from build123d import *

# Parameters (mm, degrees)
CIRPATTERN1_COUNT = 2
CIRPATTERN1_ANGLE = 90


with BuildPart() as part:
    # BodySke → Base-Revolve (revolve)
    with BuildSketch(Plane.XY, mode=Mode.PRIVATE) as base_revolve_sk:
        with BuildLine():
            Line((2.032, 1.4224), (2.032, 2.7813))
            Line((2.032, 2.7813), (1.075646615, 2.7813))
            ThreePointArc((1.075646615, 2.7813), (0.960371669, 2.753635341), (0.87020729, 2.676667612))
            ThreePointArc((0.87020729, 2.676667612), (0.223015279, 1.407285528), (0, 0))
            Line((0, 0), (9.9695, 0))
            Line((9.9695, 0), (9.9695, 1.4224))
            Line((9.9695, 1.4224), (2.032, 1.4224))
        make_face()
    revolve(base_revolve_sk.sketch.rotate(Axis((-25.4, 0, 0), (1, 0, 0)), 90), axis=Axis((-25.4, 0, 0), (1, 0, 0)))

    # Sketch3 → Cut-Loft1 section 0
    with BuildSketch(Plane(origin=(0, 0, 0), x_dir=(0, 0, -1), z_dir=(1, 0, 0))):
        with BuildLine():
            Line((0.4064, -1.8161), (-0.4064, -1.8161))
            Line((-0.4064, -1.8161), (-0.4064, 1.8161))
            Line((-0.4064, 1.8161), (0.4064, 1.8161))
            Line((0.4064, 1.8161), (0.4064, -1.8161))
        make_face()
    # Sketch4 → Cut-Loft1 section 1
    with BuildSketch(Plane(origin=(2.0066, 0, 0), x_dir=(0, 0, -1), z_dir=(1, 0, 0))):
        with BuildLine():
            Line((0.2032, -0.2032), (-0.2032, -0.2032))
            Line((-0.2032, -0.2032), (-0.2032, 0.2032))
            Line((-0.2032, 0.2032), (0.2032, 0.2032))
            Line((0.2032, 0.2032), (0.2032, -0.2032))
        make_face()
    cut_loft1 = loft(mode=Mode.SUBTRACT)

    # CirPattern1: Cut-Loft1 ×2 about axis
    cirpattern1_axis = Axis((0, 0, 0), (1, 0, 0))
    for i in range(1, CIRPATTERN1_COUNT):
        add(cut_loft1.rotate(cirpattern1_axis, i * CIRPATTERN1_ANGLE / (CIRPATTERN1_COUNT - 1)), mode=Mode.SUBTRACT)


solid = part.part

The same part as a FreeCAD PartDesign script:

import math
import FreeCAD as App
import Part
import Sketcher
from FreeCAD import Vector
Q = App.Units.Quantity

doc = App.newDocument("Part")
body = doc.addObject("PartDesign::Body", "Body")

sketch1 = body.newObject("Sketcher::SketchObject", "Sketch")
sketch1.AttachmentSupport = (doc.getObject("XY_Plane"), [""])
sketch1.MapMode = "FlatFace"
sketch1.addGeometry([
    Part.LineSegment(Vector(2.032, 1.4224, 0), Vector(2.032, 2.7813, 0)),
    Part.LineSegment(Vector(2.032, 2.7813, 0), Vector(1.075647, 2.7813, 0)),
    Part.ArcOfCircle(Part.Circle(Vector(1.075647, 2.5273, 0), Vector(0, 0, 1), 0.254), math.radians(90), math.radians(143.980436)),
    Part.ArcOfCircle(Part.Circle(Vector(4.55168, 0, 0), Vector(0, 0, 1), 4.55168), math.radians(143.980436), math.radians(180)),
    Part.LineSegment(Vector(0, 0, 0), Vector(9.9695, 0, 0)),
    Part.LineSegment(Vector(9.9695, 0, 0), Vector(9.9695, 1.4224, 0)),
    Part.LineSegment(Vector(9.9695, 1.4224, 0), Vector(2.032, 1.4224, 0)),
], False)
sketch1.addConstraint([
    Sketcher.Constraint("Coincident", 0, 2, 1, 1),
    Sketcher.Constraint("Tangent", 1, 2, 2, 1),
    Sketcher.Constraint("Tangent", 2, 2, 3, 1),
    Sketcher.Constraint("Coincident", 3, 2, 4, 1),
    Sketcher.Constraint("Coincident", 4, 2, 5, 1),
    Sketcher.Constraint("Coincident", 5, 2, 6, 1),
    Sketcher.Constraint("Coincident", 6, 2, 0, 1),
    Sketcher.Constraint("Vertical", 0),
    Sketcher.Constraint("Horizontal", 1),
    Sketcher.Constraint("Horizontal", 4),
    Sketcher.Constraint("Vertical", 5),
    Sketcher.Constraint("Horizontal", 6),
    Sketcher.Constraint("Coincident", 3, 2, -1, 1),
    Sketcher.Constraint("PointOnObject", 3, 3, -1),
    Sketcher.Constraint("Radius", 2, Q("0.01 in")),
    Sketcher.Constraint("Radius", 3, Q("0.1792 in")),
    Sketcher.Constraint("DistanceX", 6, 2, 6, 1, Q("0.3125 in")),
    Sketcher.Constraint("DistanceY", 5, 1, 5, 2, Q("0.056 in")),
    Sketcher.Constraint("DistanceX", -1, 1, 0, 2, Q("0.08 in")),
    Sketcher.Constraint("DistanceY", 0, 1, 0, 2, Q("0.0535 in")),
])
revolution = body.newObject("PartDesign::Revolution", "Revolution")
revolution.Profile = sketch1
revolution.ReferenceAxis = (sketch1, ["H_Axis"])
revolution.Angle = 360

sketch2 = body.newObject("Sketcher::SketchObject", "Sketch001")
sketch2.AttachmentSupport = (doc.getObject("YZ_Plane"), [""])
sketch2.MapMode = "FlatFace"
sketch2.addGeometry([
    Part.LineSegment(Vector(-1.8161, 0.4064, 0), Vector(-1.8161, -0.4064, 0)),
    Part.LineSegment(Vector(-1.8161, -0.4064, 0), Vector(1.8161, -0.4064, 0)),
    Part.LineSegment(Vector(1.8161, -0.4064, 0), Vector(1.8161, 0.4064, 0)),
    Part.LineSegment(Vector(1.8161, 0.4064, 0), Vector(-1.8161, 0.4064, 0)),
], False)
sketch2.addConstraint([
    Sketcher.Constraint("Coincident", 0, 2, 1, 1),
    Sketcher.Constraint("Coincident", 1, 2, 2, 1),
    Sketcher.Constraint("Coincident", 2, 2, 3, 1),
    Sketcher.Constraint("Coincident", 3, 2, 0, 1),
    Sketcher.Constraint("Vertical", 0),
    Sketcher.Constraint("Horizontal", 1),
    Sketcher.Constraint("Vertical", 2),
    Sketcher.Constraint("Horizontal", 3),
    Sketcher.Constraint("Symmetric", 0, 2, 2, 2, -1, 1),
    Sketcher.Constraint("DistanceX", 1, 1, 1, 2, Q("0.143 in")),
    Sketcher.Constraint("DistanceY", 0, 2, 0, 1, Q("0.032 in")),
])

sketch3 = body.newObject("Sketcher::SketchObject", "Sketch002")
sketch3.AttachmentSupport = (doc.getObject("YZ_Plane"), [""])
sketch3.MapMode = "FlatFace"
sketch3.AttachmentOffset = App.Placement(Vector(0, 0, 0.079 * 25.4), App.Rotation())
sketch3.addGeometry([
    Part.LineSegment(Vector(-0.2032, 0.2032, 0), Vector(-0.2032, -0.2032, 0)),
    Part.LineSegment(Vector(-0.2032, -0.2032, 0), Vector(0.2032, -0.2032, 0)),
    Part.LineSegment(Vector(0.2032, -0.2032, 0), Vector(0.2032, 0.2032, 0)),
    Part.LineSegment(Vector(0.2032, 0.2032, 0), Vector(-0.2032, 0.2032, 0)),
], False)
sketch3.addConstraint([
    Sketcher.Constraint("Coincident", 0, 2, 1, 1),
    Sketcher.Constraint("Coincident", 1, 2, 2, 1),
    Sketcher.Constraint("Coincident", 2, 2, 3, 1),
    Sketcher.Constraint("Coincident", 3, 2, 0, 1),
    Sketcher.Constraint("Vertical", 0),
    Sketcher.Constraint("Horizontal", 1),
    Sketcher.Constraint("Vertical", 2),
    Sketcher.Constraint("Horizontal", 3),
    Sketcher.Constraint("Symmetric", 0, 2, 2, 2, -1, 1),
    Sketcher.Constraint("Equal", 3, 0),
    Sketcher.Constraint("DistanceX", 1, 1, 1, 2, Q("0.016 in")),
])

subtractiveloft = body.newObject("PartDesign::SubtractiveLoft", "SubtractiveLoft")
subtractiveloft.Profile = sketch2
subtractiveloft.Sections = [sketch3]
doc.recompute()

polarpattern = body.newObject("PartDesign::PolarPattern", "PolarPattern")
polarpattern.Originals = [subtractiveloft]
polarpattern.Axis = (doc.getObject("X_Axis"), [""])
polarpattern.Angle = 90
polarpattern.Occurrences = 2
body.Tip = polarpattern

doc.recompute()
